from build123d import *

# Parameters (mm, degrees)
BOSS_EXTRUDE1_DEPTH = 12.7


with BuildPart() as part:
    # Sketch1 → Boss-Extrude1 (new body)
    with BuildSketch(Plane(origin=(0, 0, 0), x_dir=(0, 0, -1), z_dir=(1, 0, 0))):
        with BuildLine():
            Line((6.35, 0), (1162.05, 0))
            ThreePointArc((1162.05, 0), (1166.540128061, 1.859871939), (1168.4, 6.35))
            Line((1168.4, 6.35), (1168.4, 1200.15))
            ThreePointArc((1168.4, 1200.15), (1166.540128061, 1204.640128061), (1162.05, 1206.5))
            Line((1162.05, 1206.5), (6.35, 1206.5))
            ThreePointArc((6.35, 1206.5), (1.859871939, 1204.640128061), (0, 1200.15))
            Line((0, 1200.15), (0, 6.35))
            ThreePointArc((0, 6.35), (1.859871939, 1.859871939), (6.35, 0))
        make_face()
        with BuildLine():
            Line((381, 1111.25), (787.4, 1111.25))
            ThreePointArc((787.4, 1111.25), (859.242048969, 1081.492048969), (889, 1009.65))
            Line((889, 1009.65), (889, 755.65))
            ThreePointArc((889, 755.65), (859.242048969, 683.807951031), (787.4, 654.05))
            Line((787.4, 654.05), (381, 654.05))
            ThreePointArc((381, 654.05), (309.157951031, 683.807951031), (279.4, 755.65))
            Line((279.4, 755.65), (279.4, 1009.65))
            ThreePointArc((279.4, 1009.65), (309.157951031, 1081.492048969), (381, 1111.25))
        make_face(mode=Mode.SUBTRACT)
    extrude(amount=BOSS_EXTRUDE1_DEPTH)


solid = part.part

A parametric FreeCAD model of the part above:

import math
import FreeCAD as App
import Part
import Sketcher
Q = App.Units.Quantity

doc = App.newDocument("Part")
params = doc.addObject("Spreadsheet::Sheet", "Params")
for row, (alias, value) in enumerate([
    ("sketch1_radius", "4 in"),
    ("sketch1_width", "47 in"),
    ("sketch1_width2", "10 in"),
    ("sketch1_height", "16 in"),
    ("sketch1_radius2", "0.25 in"),
    ("pad1_length", "0.5 in"),
], start=1):
    params.set(f"A{row}", alias)
    params.set(f"B{row}", "=" + value)
    params.setAlias(f"B{row}", alias)

body = doc.addObject("PartDesign::Body", "Body")

# Sketch on YZ plane
sketch1 = body.newObject("Sketcher::SketchObject", "Sketch")
sketch1.AttachmentSupport = (doc.getObject("YZ_Plane"), [""])
sketch1.MapMode = "FlatFace"
sketch1.addGeometry(Part.LineSegment(App.Vector(0, -6, 0), App.Vector(0, -1162, 0)), False)
sketch1.addGeometry(Part.ArcOfCircle(Part.Circle(App.Vector(6, -1162, 0), App.Vector(0, 0, 1), 6), math.radians(180), math.radians(270)), False)
sketch1.addGeometry(Part.LineSegment(App.Vector(6, -1168, 0), App.Vector(1200, -1168, 0)), False)
sketch1.addGeometry(Part.ArcOfCircle(Part.Circle(App.Vector(1200, -1162, 0), App.Vector(0, 0, 1), 6), math.radians(-90), math.radians(0)), False)
sketch1.addGeometry(Part.LineSegment(App.Vector(1206, -1162, 0), App.Vector(1206, -6, 0)), False)
sketch1.addGeometry(Part.ArcOfCircle(Part.Circle(App.Vector(1200, -6, 0), App.Vector(0, 0, 1), 6), math.radians(0), math.radians(90)), False)
sketch1.addGeometry(Part.LineSegment(App.Vector(1200, 0, 0), App.Vector(6, 0, 0)), False)
sketch1.addGeometry(Part.ArcOfCircle(Part.Circle(App.Vector(6, -6, 0), App.Vector(0, 0, 1), 6), math.radians(90), math.radians(180)), False)
sketch1.addGeometry(Part.ArcOfCircle(Part.Circle(App.Vector(1010, -381, 0), App.Vector(0, 0, 1), 102), math.radians(0), math.radians(90)), False)
sketch1.addGeometry(Part.LineSegment(App.Vector(1111, -381, 0), App.Vector(1111, -787, 0)), False)
sketch1.addGeometry(Part.ArcOfCircle(Part.Circle(App.Vector(1010, -787, 0), App.Vector(0, 0, 1), 102), math.radians(-90), math.radians(0)), False)
sketch1.addGeometry(Part.LineSegment(App.Vector(1010, -889, 0), App.Vector(756, -889, 0)), False)
sketch1.addGeometry(Part.ArcOfCircle(Part.Circle(App.Vector(756, -787, 0), App.Vector(0, 0, 1), 102), math.radians(180), math.radians(270)), False)
sketch1.addGeometry(Part.LineSegment(App.Vector(654, -787, 0), App.Vector(654, -381, 0)), False)
sketch1.addGeometry(Part.ArcOfCircle(Part.Circle(App.Vector(756, -381, 0), App.Vector(0, 0, 1), 102), math.radians(90), math.radians(180)), False)
sketch1.addGeometry(Part.LineSegment(App.Vector(756, -279, 0), App.Vector(1010, -279, 0)), False)
sketch1.addConstraint(Sketcher.Constraint("Tangent", 0, 2, 1, 1))
sketch1.addConstraint(Sketcher.Constraint("Tangent", 1, 2, 2, 1))
sketch1.addConstraint(Sketcher.Constraint("Tangent", 2, 2, 3, 1))
sketch1.addConstraint(Sketcher.Constraint("Tangent", 3, 2, 4, 1))
sketch1.addConstraint(Sketcher.Constraint("Tangent", 4, 2, 5, 1))
sketch1.addConstraint(Sketcher.Constraint("Tangent", 5, 2, 6, 1))
sketch1.addConstraint(Sketcher.Constraint("Tangent", 6, 2, 7, 1))
sketch1.addConstraint(Sketcher.Constraint("Tangent", 7, 2, 0, 1))
sketch1.addConstraint(Sketcher.Constraint("Tangent", 8, 1, 9, 1))
sketch1.addConstraint(Sketcher.Constraint("Tangent", 9, 2, 10, 2))
sketch1.addConstraint(Sketcher.Constraint("Tangent", 10, 1, 11, 1))
sketch1.addConstraint(Sketcher.Constraint("Tangent", 11, 2, 12, 2))
sketch1.addConstraint(Sketcher.Constraint("Tangent", 12, 1, 13, 1))
sketch1.addConstraint(Sketcher.Constraint("Tangent", 13, 2, 14, 2))
sketch1.addConstraint(Sketcher.Constraint("Tangent", 14, 1, 15, 1))
sketch1.addConstraint(Sketcher.Constraint("Tangent", 15, 2, 8, 2))
sketch1.addConstraint(Sketcher.Constraint("Vertical", 0))
sketch1.addConstraint(Sketcher.Constraint("Horizontal", 2))
sketch1.addConstraint(Sketcher.Constraint("Vertical", 4))
sketch1.addConstraint(Sketcher.Constraint("Horizontal", 6))
sketch1.addConstraint(Sketcher.Constraint("Vertical", 9))
sketch1.addConstraint(Sketcher.Constraint("Horizontal", 11))
sketch1.addConstraint(Sketcher.Constraint("Vertical", 13))
sketch1.addConstraint(Sketcher.Constraint("Horizontal", 15))
sketch1.addConstraint(Sketcher.Constraint("Equal", 1, 3))
sketch1.addConstraint(Sketcher.Constraint("Equal", 3, 5))
sketch1.addConstraint(Sketcher.Constraint("Equal", 5, 7))
sketch1.addConstraint(Sketcher.Constraint("Equal", 8, 10))
sketch1.addConstraint(Sketcher.Constraint("Equal", 10, 12))
sketch1.addConstraint(Sketcher.Constraint("Equal", 12, 14))
sketch1.addConstraint(Sketcher.Constraint("PointOnObject", 0, 2, -2))
sketch1.addConstraint(Sketcher.Constraint("PointOnObject", 5, 2, -1))
sketch1.addConstraint(Sketcher.Constraint("Radius", 8, Q("4 in")))
sketch1.addConstraint(Sketcher.Constraint("DistanceX", 2, 1, 2, 2, Q("47 in")))
sketch1.addConstraint(Sketcher.Constraint("DistanceX", 11, 2, 11, 1, Q("10 in")))
sketch1.addConstraint(Sketcher.Constraint("DistanceY", 9, 2, 9, 1, Q("16 in")))
sketch1.addConstraint(Sketcher.Constraint("Radius", 1, Q("0.25 in")))
sketch1.addConstraint(Sketcher.Constraint("DistanceY", 0, 2, 0, 1, Q("45.5 in")))
sketch1.addConstraint(Sketcher.Constraint("DistanceY", 8, 3, -1, 1, Q("15 in")))
sketch1.addConstraint(Sketcher.Constraint("DistanceX", 8, 3, 5, 3, Q("7.5 in")))
sketch1.setExpression("Constraints[32]", "Params.sketch1_radius")
sketch1.setExpression("Constraints[33]", "Params.sketch1_width")
sketch1.setExpression("Constraints[34]", "Params.sketch1_width2")
sketch1.setExpression("Constraints[35]", "Params.sketch1_height")
sketch1.setExpression("Constraints[36]", "Params.sketch1_radius2")
pad1 = body.newObject("PartDesign::Pad", "Pad")
pad1.Profile = sketch1
pad1.setExpression("Length", "Params.pad1_length")

doc.recompute()
